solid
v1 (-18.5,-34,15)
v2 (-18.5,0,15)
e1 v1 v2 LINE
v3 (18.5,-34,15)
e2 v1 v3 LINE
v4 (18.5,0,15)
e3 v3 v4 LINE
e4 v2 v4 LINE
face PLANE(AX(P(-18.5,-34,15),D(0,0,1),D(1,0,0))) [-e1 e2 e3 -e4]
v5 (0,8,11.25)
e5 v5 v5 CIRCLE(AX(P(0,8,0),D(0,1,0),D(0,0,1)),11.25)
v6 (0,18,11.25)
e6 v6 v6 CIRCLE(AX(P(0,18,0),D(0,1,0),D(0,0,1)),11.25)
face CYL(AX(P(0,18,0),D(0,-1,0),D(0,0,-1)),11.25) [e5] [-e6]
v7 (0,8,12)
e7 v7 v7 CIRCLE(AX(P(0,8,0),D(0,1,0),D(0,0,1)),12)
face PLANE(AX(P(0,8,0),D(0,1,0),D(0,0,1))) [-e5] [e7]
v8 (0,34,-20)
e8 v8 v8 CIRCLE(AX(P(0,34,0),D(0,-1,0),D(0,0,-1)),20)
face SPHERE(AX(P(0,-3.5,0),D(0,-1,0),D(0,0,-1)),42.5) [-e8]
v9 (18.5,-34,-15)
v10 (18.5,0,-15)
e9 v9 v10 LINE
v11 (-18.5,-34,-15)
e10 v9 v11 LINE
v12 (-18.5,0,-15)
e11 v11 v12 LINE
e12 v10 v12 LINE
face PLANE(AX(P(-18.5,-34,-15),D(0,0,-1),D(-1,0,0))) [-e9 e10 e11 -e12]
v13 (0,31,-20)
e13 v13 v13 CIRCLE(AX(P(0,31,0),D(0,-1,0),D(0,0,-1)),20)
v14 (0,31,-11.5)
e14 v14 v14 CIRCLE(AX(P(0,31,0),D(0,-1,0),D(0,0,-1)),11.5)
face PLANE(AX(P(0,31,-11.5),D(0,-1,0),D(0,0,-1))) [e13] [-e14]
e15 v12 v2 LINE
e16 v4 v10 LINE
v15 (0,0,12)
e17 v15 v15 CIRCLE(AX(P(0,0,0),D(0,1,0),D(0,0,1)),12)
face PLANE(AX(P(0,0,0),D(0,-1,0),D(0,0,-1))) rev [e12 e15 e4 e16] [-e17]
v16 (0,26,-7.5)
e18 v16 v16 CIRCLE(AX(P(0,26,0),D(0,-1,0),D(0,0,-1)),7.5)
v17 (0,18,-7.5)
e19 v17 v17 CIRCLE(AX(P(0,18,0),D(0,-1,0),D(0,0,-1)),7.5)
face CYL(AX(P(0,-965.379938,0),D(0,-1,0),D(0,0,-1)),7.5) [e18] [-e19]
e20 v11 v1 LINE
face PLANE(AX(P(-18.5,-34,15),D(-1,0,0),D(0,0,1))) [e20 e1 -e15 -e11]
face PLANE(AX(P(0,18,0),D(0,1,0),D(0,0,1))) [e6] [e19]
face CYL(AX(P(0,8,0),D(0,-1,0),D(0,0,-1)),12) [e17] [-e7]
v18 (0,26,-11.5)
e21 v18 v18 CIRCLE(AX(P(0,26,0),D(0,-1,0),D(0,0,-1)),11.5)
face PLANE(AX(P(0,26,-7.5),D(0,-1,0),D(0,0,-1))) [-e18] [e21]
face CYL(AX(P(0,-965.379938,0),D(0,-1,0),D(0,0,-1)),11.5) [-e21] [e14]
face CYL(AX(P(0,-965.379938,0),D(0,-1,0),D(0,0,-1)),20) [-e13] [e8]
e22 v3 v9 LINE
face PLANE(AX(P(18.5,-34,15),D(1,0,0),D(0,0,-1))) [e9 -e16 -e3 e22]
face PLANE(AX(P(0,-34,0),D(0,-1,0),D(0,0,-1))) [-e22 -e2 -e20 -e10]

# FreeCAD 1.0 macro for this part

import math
import FreeCAD as App
import Part
import Sketcher

V = App.Vector


def add_polygon(sketch, points):
    """Adds a closed chain of lines whose ends are joined by coincident constraints."""
    first, n = sketch.GeometryCount, len(points)
    for a, b in zip(points, points[1:] + points[:1]):
        sketch.addGeometry(Part.LineSegment(App.Vector(*a, 0), App.Vector(*b, 0)), False)
    for i in range(n):
        sketch.addConstraint(Sketcher.Constraint("Coincident", first + i, 2, first + (i + 1) % n, 1))

doc = App.newDocument("Part")
body = doc.addObject("PartDesign::Body", "Body")

# Sketch on XZ plane
sketch1 = body.newObject("Sketcher::SketchObject", "Sketch")
sketch1.AttachmentSupport = (doc.getObject("XZ_Plane"), [""])
sketch1.MapMode = "FlatFace"
add_polygon(sketch1, [(-18, -15), (-18, 15), (18, 15), (18, -15)])  # lines 0-3
sketch1.addConstraint(Sketcher.Constraint("Vertical", 0))
sketch1.addConstraint(Sketcher.Constraint("Horizontal", 1))
sketch1.addConstraint(Sketcher.Constraint("Vertical", 2))
sketch1.addConstraint(Sketcher.Constraint("Horizontal", 3))
sketch1.addConstraint(Sketcher.Constraint("Symmetric", 0, 2, 2, 2, -1, 1))
sketch1.addConstraint(Sketcher.Constraint("DistanceX", 1, 1, 1, 2, 37.0))
sketch1.addConstraint(Sketcher.Constraint("DistanceY", 0, 1, 0, 2, 30.0))
pad1 = body.newObject("PartDesign::Pad", "Pad")
pad1.Profile = sketch1
pad1.Length = 34

# Sketch on XZ plane
sketch2 = body.newObject("Sketcher::SketchObject", "Sketch001")
sketch2.AttachmentSupport = (doc.getObject("XZ_Plane"), [""])
sketch2.MapMode = "FlatFace"
sketch2.addGeometry(Part.Circle(V(0, 0, 0), V(0, 0, 1), 12), False)
sketch2.addConstraint(Sketcher.Constraint("Coincident", 0, 3, -1, 1))
sketch2.addConstraint(Sketcher.Constraint("Diameter", 0, 24.0))
pad2 = body.newObject("PartDesign::Pad", "Pad001")
pad2.Profile = sketch2
pad2.Length = 8
pad2.Reversed = True

# Sketch on XZ plane
sketch3 = body.newObject("Sketcher::SketchObject", "Sketch002")
sketch3.AttachmentSupport = (doc.getObject("XZ_Plane"), [""])
sketch3.MapMode = "FlatFace"
sketch3.AttachmentOffset = App.Placement(V(0, 0, -8), App.Rotation())
sketch3.addGeometry(Part.Circle(V(0, 0, 0), V(0, 0, 1), 11), False)
sketch3.addConstraint(Sketcher.Constraint("Coincident", 0, 3, -1, 1))
sketch3.addConstraint(Sketcher.Constraint("Diameter", 0, 22.5))
pad3 = body.newObject("PartDesign::Pad", "Pad002")
pad3.Profile = sketch3
pad3.Length = 10
pad3.Reversed = True

# Sketch on YZ plane
sketch4 = body.newObject("Sketcher::SketchObject", "Sketch003")
sketch4.AttachmentSupport = (doc.getObject("YZ_Plane"), [""])
sketch4.MapMode = "FlatFace"
sketch4.addGeometry(Part.LineSegment(V(39, 0, 0), V(18, 0, 0)), False)
sketch4.addGeometry(Part.LineSegment(V(18, 0, 0), V(18, -7.5, 0)), False)
sketch4.addGeometry(Part.LineSegment(V(18, -7.5, 0), V(26, -7.5, 0)), False)
sketch4.addGeometry(Part.LineSegment(V(26, -7.5, 0), V(26, -11.5, 0)), False)
sketch4.addGeometry(Part.LineSegment(V(26, -11.5, 0), V(31, -11.5, 0)), False)
sketch4.addGeometry(Part.LineSegment(V(31, -11.5, 0), V(31, -20, 0)), False)
sketch4.addGeometry(Part.LineSegment(V(31, -20, 0), V(34, -20, 0)), False)
sketch4.addGeometry(Part.ArcOfCircle(Part.Circle(V(-3.5, 0, 0), V(0, 0, 1), 42.5), math.radians(-28), math.radians(0)), False)
sketch4.addConstraint(Sketcher.Constraint("Coincident", 0, 2, 1, 1))
sketch4.addConstraint(Sketcher.Constraint("Coincident", 1, 2, 2, 1))
sketch4.addConstraint(Sketcher.Constraint("Coincident", 2, 2, 3, 1))
sketch4.addConstraint(Sketcher.Constraint("Coincident", 3, 2, 4, 1))
sketch4.addConstraint(Sketcher.Constraint("Coincident", 4, 2, 5, 1))
sketch4.addConstraint(Sketcher.Constraint("Coincident", 5, 2, 6, 1))
sketch4.addConstraint(Sketcher.Constraint("Coincident", 6, 2, 7, 1))
sketch4.addConstraint(Sketcher.Constraint("Coincident", 7, 2, 0, 1))
sketch4.addConstraint(Sketcher.Constraint("Horizontal", 0))
sketch4.addConstraint(Sketcher.Constraint("Vertical", 1))
sketch4.addConstraint(Sketcher.Constraint("Horizontal", 2))
sketch4.addConstraint(Sketcher.Constraint("Vertical", 3))
sketch4.addConstraint(Sketcher.Constraint("Horizontal", 4))
sketch4.addConstraint(Sketcher.Constraint("Vertical", 5))
sketch4.addConstraint(Sketcher.Constraint("Horizontal", 6))
sketch4.addConstraint(Sketcher.Constraint("PointOnObject", 7, 3, -1))
sketch4.addConstraint(Sketcher.Constraint("PointOnObject", 0, 2, -1))
sketch4.addConstraint(Sketcher.Constraint("Radius", 7, 42.5))
sketch4.addConstraint(Sketcher.Constraint("DistanceX", 0, 2, 0, 1, 21.0))
sketch4.addConstraint(Sketcher.Constraint("DistanceX", 2, 1, 2, 2, 8.0))
sketch4.addConstraint(Sketcher.Constraint("DistanceX", 4, 1, 4, 2, 5.0))
sketch4.addConstraint(Sketcher.Constraint("DistanceX", 6, 1, 6, 2, 3.0))
sketch4.addConstraint(Sketcher.Constraint("DistanceY", 3, 2, 3, 1, 4.0))
sketch4.addConstraint(Sketcher.Constraint("DistanceY", 1, 2, 1, 1, 7.5))
sketch4.addConstraint(Sketcher.Constraint("DistanceX", -1, 1, 0, 2, 18.0))
revolution = body.newObject("PartDesign::Revolution", "Revolution")
revolution.Profile = sketch4
revolution.ReferenceAxis = (sketch4, ["H_Axis"])
revolution.Angle = 360

doc.recompute()
